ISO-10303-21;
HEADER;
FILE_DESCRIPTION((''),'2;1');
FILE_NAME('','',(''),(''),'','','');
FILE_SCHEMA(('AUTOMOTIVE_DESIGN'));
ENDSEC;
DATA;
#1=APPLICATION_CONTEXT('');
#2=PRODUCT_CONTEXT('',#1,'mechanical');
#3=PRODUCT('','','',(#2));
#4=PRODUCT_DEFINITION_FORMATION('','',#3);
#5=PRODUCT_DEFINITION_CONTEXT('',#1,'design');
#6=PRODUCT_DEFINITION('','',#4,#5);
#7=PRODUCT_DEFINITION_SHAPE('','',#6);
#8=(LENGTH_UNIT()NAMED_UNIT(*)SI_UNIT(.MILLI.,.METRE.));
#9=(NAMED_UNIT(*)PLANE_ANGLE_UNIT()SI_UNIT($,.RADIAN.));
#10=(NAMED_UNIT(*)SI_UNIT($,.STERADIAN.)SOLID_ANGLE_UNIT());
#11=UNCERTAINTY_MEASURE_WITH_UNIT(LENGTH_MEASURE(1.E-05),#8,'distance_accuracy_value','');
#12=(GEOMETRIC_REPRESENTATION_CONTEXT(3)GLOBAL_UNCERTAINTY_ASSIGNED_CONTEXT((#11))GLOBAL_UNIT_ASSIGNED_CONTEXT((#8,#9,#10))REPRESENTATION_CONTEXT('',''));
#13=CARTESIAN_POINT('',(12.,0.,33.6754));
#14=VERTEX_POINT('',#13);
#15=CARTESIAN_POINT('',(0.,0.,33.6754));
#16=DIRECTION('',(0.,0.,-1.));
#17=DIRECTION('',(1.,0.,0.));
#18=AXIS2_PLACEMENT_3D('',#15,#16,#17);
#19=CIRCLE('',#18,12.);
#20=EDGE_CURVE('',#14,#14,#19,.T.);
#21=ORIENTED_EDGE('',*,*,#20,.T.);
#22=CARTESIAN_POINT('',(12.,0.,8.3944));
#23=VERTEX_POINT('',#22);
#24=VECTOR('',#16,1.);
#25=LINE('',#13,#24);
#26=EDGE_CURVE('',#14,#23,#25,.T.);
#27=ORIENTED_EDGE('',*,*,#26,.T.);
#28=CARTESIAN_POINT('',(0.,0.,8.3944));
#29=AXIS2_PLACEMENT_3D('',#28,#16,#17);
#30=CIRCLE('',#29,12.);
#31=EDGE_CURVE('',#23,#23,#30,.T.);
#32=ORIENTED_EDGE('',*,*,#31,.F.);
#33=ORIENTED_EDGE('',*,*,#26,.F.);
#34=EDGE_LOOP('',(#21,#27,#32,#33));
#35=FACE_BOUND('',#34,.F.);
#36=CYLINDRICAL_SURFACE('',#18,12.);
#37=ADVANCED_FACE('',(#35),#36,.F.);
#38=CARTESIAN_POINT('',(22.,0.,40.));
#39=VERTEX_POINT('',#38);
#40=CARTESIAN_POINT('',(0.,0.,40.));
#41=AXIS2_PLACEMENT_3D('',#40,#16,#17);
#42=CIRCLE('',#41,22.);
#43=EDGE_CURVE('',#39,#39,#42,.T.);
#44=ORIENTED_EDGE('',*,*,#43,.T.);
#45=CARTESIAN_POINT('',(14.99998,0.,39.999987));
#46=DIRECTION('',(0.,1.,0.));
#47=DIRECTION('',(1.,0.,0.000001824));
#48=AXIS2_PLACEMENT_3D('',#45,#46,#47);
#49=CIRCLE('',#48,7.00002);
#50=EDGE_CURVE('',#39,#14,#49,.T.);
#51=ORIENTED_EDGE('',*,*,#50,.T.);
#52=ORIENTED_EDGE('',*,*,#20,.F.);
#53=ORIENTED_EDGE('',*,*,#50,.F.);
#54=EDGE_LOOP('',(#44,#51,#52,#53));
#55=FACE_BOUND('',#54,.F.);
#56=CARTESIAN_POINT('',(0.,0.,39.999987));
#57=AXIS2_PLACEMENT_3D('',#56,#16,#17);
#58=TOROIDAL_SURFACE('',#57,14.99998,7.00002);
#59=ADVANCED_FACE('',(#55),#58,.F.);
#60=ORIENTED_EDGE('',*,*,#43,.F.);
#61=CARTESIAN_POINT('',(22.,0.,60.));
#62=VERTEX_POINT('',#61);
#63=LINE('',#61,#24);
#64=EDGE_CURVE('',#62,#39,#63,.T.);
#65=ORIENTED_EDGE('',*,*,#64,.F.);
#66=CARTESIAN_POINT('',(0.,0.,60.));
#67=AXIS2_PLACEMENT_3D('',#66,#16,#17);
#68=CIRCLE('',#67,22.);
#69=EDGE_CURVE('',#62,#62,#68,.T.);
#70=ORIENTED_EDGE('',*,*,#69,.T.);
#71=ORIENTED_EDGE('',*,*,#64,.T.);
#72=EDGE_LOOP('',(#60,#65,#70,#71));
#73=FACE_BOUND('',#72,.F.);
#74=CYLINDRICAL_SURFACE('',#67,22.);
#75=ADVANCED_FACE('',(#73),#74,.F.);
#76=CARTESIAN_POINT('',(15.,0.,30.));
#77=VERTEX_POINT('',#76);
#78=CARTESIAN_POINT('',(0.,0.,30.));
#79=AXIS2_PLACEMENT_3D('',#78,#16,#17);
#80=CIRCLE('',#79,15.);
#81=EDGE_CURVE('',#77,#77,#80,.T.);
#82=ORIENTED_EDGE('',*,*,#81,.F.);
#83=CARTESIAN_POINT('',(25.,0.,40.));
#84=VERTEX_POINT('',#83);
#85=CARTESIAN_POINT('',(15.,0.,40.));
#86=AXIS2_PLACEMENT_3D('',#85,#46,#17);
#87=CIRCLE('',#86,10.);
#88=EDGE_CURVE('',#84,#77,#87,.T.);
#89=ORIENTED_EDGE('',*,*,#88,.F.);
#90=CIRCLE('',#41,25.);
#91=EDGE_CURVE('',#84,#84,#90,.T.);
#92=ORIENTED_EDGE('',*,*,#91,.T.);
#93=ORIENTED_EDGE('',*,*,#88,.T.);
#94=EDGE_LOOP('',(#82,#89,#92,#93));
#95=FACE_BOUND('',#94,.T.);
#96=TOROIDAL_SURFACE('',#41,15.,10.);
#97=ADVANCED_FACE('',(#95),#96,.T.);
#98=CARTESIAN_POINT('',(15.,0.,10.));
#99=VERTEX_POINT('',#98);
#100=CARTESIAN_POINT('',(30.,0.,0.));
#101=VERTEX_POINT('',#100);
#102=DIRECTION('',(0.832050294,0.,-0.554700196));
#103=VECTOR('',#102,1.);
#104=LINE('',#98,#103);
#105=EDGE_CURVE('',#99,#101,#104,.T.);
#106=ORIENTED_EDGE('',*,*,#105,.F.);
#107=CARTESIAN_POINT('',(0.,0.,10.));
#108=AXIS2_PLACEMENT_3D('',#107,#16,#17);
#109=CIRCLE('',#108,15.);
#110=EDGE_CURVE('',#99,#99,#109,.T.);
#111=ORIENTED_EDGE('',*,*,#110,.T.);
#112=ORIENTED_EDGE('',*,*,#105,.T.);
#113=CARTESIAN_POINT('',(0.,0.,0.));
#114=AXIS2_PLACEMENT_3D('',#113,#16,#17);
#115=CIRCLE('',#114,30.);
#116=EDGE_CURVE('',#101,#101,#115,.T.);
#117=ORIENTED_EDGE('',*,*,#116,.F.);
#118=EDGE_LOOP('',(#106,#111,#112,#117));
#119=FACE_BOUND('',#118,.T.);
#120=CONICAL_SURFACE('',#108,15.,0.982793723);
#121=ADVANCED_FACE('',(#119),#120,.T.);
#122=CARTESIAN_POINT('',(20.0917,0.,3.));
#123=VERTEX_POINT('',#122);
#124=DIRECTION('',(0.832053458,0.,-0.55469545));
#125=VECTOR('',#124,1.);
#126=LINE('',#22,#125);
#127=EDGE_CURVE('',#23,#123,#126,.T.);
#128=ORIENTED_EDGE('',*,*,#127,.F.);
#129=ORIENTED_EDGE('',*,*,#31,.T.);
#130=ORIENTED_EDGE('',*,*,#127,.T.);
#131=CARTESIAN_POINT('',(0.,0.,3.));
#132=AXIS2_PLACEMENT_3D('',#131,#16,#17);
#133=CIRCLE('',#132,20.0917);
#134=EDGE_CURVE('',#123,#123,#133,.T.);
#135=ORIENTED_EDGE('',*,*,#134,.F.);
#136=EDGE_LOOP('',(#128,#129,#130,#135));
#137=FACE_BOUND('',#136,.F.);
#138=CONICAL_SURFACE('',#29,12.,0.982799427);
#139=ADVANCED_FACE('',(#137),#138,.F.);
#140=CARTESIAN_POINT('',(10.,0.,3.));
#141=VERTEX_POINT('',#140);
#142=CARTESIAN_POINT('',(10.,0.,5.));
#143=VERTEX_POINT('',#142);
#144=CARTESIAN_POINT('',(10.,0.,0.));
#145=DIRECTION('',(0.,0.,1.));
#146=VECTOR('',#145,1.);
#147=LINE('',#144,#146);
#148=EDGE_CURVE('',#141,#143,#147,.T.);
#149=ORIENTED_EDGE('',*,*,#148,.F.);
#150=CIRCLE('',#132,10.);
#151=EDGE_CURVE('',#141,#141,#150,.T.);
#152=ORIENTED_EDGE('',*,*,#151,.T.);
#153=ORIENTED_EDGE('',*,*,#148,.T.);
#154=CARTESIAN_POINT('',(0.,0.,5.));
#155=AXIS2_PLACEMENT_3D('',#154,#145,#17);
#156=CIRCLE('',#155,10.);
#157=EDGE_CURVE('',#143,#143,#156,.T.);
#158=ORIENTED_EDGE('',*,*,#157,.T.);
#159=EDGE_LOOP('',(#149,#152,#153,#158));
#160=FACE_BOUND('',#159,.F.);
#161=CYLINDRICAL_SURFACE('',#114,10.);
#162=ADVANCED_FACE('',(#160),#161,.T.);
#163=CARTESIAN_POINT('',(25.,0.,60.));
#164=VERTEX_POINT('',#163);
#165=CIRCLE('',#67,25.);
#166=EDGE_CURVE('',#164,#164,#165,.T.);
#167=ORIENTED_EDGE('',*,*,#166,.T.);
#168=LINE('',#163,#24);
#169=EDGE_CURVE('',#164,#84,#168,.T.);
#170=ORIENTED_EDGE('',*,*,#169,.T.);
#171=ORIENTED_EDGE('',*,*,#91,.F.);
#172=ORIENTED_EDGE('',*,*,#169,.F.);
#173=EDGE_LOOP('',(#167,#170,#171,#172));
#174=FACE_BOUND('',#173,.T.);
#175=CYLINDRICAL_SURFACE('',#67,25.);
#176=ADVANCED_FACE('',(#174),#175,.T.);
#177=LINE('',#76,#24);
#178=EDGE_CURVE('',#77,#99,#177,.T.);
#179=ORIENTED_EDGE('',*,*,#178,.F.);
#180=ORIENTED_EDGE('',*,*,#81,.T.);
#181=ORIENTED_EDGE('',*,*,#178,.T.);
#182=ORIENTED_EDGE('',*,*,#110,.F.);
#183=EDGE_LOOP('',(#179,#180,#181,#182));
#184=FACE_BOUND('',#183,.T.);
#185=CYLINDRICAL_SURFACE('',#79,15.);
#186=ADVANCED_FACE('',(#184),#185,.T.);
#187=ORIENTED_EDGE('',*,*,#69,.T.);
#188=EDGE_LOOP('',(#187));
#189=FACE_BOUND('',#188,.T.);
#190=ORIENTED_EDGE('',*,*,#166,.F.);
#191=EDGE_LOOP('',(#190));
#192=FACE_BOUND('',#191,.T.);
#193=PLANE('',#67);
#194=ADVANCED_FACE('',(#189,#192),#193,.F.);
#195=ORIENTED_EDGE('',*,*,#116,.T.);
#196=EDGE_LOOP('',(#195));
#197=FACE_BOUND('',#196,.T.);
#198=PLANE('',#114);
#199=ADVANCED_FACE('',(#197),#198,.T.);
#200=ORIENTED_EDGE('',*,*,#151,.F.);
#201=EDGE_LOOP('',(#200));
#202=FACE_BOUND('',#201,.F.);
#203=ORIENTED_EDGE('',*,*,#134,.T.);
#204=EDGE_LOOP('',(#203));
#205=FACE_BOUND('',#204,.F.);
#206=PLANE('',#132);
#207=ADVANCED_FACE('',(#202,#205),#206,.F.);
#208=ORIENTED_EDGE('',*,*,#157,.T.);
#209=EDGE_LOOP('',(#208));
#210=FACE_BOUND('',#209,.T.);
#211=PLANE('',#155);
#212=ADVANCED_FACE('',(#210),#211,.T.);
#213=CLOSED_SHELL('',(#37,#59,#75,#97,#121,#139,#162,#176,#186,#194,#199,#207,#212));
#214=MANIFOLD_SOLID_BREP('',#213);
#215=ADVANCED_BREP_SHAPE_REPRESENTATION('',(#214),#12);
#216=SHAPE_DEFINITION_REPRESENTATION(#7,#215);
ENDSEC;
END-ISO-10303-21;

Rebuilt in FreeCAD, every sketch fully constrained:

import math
import FreeCAD as App
import Part
import Sketcher
from FreeCAD import Vector

doc = App.newDocument("Part")
params = doc.addObject("Spreadsheet::Sheet", "Params")
for row, (alias, value) in enumerate([
    ("sketch1_radius", "10 mm"),
    ("sketch1_width", "3 mm"),
    ("sketch1_width2", "20 mm"),
    ("revolution_angle", "360 deg"),
    ("sketch2_diameter", "20 mm"),
    ("pad1_length", "5 mm"),
], start=1):
    params.set(f"A{row}", alias)
    params.set(f"B{row}", "=" + value)
    params.setAlias(f"B{row}", alias)

body = doc.addObject("PartDesign::Body", "Body")

# Sketch on XZ plane
sketch1 = body.newObject("Sketcher::SketchObject", "Sketch")
sketch1.AttachmentSupport = (doc.getObject("XZ_Plane"), [""])
sketch1.MapMode = "FlatFace"
sketch1.addGeometry([
    Part.LineSegment(Vector(22, 60, 0), Vector(25, 60, 0)),  # 0
    Part.LineSegment(Vector(25, 60, 0), Vector(25, 40, 0)),  # 1
    Part.ArcOfCircle(Part.Circle(Vector(15, 40, 0), Vector(0, 0, 1), 10), math.radians(-90), math.radians(0)),  # 2
    Part.LineSegment(Vector(15, 30, 0), Vector(15, 10, 0)),  # 3
    Part.LineSegment(Vector(15, 10, 0), Vector(30, 0, 0)),  # 4
    Part.LineSegment(Vector(30, 0, 0), Vector(10, 0, 0)),  # 5
    Part.LineSegment(Vector(10, 0, 0), Vector(10, 3, 0)),  # 6
    Part.LineSegment(Vector(10, 3, 0), Vector(20.0917, 3, 0)),  # 7
    Part.LineSegment(Vector(20.0917, 3, 0), Vector(12, 8.3944, 0)),  # 8
    Part.LineSegment(Vector(12, 8.3944, 0), Vector(12, 33.6754, 0)),  # 9
    Part.ArcOfCircle(Part.Circle(Vector(15, 40, 0), Vector(0, 0, 1), 7), math.radians(-115.376777), math.radians(0)),  # 10
    Part.LineSegment(Vector(22, 40, 0), Vector(22, 60, 0)),  # 11
], False)
sketch1.addConstraint([
    Sketcher.Constraint("Coincident", 0, 2, 1, 1),
    Sketcher.Constraint("Tangent", 1, 2, 2, 2),
    Sketcher.Constraint("Coincident", 2, 1, 3, 1),
    Sketcher.Constraint("Coincident", 3, 2, 4, 1),
    Sketcher.Constraint("Coincident", 4, 2, 5, 1),
    Sketcher.Constraint("Coincident", 5, 2, 6, 1),
    Sketcher.Constraint("Coincident", 6, 2, 7, 1),
    Sketcher.Constraint("Coincident", 7, 2, 8, 1),
    Sketcher.Constraint("Coincident", 8, 2, 9, 1),
    Sketcher.Constraint("Coincident", 9, 2, 10, 1),
    Sketcher.Constraint("Tangent", 10, 2, 11, 1),
    Sketcher.Constraint("Coincident", 11, 2, 0, 1),
    Sketcher.Constraint("Horizontal", 0),
    Sketcher.Constraint("Vertical", 1),
    Sketcher.Constraint("Vertical", 3),
    Sketcher.Constraint("Horizontal", 5),
    Sketcher.Constraint("Vertical", 6),
    Sketcher.Constraint("Horizontal", 7),
    Sketcher.Constraint("Vertical", 9),
    Sketcher.Constraint("Vertical", 11),
    Sketcher.Constraint("Coincident", 10, 3, 2, 3),
    Sketcher.Constraint("PointOnObject", 4, 2, -1),
    Sketcher.Constraint("Parallel", 4, 8),
    Sketcher.Constraint("Vertical", 10, 3, 2, 1),
    Sketcher.Constraint("Equal", 5, 1),
    Sketcher.Constraint("Equal", 1, 3),
    Sketcher.Constraint("Equal", 0, 6),
    Sketcher.Constraint("Radius", 2, 10.0),
    Sketcher.Constraint("DistanceX", 0, 1, 0, 2, 3.0),
    Sketcher.Constraint("DistanceX", 5, 2, 5, 1, 20.0),
    Sketcher.Constraint("DistanceY", -1, 1, 3, 2, 10.0),
    Sketcher.Constraint("DistanceX", -1, 1, 5, 2, 10.0),
    Sketcher.Constraint("DistanceX", 8, 2, 3, 2, 3.0),
    Sketcher.Constraint("DistanceX", -1, 1, 2, 3, 15.0),
    Sketcher.Constraint("DistanceY", 9, 1, 9, 2, 25.281),
])
sketch1.setExpression("Constraints[27]", "Params.sketch1_radius")
sketch1.setExpression("Constraints[28]", "Params.sketch1_width")
sketch1.setExpression("Constraints[29]", "Params.sketch1_width2")
revolution = body.newObject("PartDesign::Revolution", "Revolution")
revolution.Profile = sketch1
revolution.ReferenceAxis = (sketch1, ["V_Axis"])
revolution.setExpression("Angle", "Params.revolution_angle")

# Sketch on XY plane
sketch2 = body.newObject("Sketcher::SketchObject", "Sketch001")
sketch2.AttachmentSupport = (doc.getObject("XY_Plane"), [""])
sketch2.MapMode = "FlatFace"
sketch2.addGeometry(Part.Circle(Vector(0, 0, 0), Vector(0, 0, 1), 10), False)
sketch2.addConstraint([
    Sketcher.Constraint("Coincident", 0, 3, -1, 1),
    Sketcher.Constraint("Diameter", 0, 20.0),
])
sketch2.setExpression("Constraints[1]", "Params.sketch2_diameter")
pad1 = body.newObject("PartDesign::Pad", "Pad")
pad1.Profile = sketch2
pad1.setExpression("Length", "Params.pad1_length")

doc.recompute()
